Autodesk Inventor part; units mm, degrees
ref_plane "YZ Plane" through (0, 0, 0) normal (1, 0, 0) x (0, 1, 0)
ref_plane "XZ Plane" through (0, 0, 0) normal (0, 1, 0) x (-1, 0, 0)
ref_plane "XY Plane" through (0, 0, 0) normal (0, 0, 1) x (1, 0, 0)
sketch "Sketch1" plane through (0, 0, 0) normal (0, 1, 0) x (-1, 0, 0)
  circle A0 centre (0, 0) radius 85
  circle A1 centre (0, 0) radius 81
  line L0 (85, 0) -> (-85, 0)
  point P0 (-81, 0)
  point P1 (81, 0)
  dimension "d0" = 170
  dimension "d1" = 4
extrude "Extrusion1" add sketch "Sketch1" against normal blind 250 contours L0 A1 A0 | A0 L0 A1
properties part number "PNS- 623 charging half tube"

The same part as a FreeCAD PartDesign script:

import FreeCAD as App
import Part
import Sketcher

V = App.Vector
Q = App.Units.Quantity

doc = App.newDocument("Part")
body = doc.addObject("PartDesign::Body", "Body")

# Sketch on XZ plane
sketch1 = body.newObject("Sketcher::SketchObject", "Sketch")
sketch1.AttachmentSupport = (doc.getObject("XZ_Plane"), [""])
sketch1.MapMode = "FlatFace"
sketch1.addGeometry([
    Part.Circle(V(0, 0, 0), V(0, 0, 1), 85),
    Part.Circle(V(0, 0, 0), V(0, 0, 1), 81),
], False)
sketch1.addConstraint([
    Sketcher.Constraint("Coincident", 0, 3, -1, 1),
    Sketcher.Constraint("Coincident", 1, 3, -1, 1),
    Sketcher.Constraint("Diameter", 0, Q("170 mm")),
    Sketcher.Constraint("Diameter", 1, Q("162 mm")),
])
pad1 = body.newObject("PartDesign::Pad", "Pad")
pad1.Profile = sketch1
pad1.Length = 250

doc.recompute()
